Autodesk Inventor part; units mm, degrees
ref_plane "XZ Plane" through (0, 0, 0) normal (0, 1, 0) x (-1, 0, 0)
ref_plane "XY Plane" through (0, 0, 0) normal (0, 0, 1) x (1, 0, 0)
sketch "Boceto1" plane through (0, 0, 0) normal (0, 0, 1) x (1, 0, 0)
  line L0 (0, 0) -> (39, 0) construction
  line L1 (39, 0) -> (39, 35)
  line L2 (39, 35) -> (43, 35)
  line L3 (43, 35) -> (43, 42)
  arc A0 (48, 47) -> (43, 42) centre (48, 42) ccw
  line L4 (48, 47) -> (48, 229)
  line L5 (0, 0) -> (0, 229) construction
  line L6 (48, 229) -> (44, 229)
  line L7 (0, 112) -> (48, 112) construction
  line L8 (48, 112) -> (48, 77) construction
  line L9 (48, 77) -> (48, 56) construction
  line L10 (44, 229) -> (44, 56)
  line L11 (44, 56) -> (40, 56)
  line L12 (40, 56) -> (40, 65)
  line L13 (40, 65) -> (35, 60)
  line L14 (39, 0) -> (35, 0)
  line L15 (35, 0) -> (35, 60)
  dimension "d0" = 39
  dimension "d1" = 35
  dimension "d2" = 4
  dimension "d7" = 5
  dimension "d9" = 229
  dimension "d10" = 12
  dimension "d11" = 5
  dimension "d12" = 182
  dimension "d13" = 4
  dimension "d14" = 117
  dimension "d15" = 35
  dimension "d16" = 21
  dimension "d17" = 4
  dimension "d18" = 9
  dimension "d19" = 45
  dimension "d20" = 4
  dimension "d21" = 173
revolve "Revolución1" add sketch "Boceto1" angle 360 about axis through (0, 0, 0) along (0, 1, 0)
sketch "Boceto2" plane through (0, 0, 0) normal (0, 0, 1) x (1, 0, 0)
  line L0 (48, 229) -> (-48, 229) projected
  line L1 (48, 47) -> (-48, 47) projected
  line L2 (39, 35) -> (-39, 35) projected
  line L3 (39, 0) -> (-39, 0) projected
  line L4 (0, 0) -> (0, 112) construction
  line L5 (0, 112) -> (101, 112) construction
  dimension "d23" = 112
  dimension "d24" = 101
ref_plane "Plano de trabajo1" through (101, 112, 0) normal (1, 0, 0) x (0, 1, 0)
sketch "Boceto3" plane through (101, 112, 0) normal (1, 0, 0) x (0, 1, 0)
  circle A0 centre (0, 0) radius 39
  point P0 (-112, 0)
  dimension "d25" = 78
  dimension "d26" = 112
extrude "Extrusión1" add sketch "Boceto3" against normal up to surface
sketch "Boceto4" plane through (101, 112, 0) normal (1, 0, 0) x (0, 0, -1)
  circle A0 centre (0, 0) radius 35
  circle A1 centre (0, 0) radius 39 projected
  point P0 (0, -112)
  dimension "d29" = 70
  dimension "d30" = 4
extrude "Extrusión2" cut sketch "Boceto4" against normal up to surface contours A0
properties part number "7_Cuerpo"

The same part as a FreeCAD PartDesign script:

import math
import FreeCAD as App
import Part
import Sketcher

V = App.Vector

doc = App.newDocument("Part")
body = doc.addObject("PartDesign::Body", "Body")

sketch1 = body.newObject("Sketcher::SketchObject", "Sketch")
sketch1.AttachmentSupport = (doc.getObject("XY_Plane"), [""])
sketch1.MapMode = "FlatFace"
sketch1.addGeometry([
    Part.LineSegment(V(35, 0, 0), V(39, 0, 0)),
    Part.LineSegment(V(39, 0, 0), V(39, 35, 0)),
    Part.LineSegment(V(39, 35, 0), V(43, 35, 0)),
    Part.LineSegment(V(43, 35, 0), V(43, 42, 0)),
    Part.ArcOfCircle(Part.Circle(V(48, 42, 0), V(0, 0, 1), 5), math.radians(90), math.radians(180)),
    Part.LineSegment(V(48, 47, 0), V(48, 229, 0)),
    Part.LineSegment(V(48, 229, 0), V(44, 229, 0)),
    Part.LineSegment(V(44, 229, 0), V(44, 56, 0)),
    Part.LineSegment(V(44, 56, 0), V(40, 56, 0)),
    Part.LineSegment(V(40, 56, 0), V(40, 65, 0)),
    Part.LineSegment(V(40, 65, 0), V(35, 60, 0)),
    Part.LineSegment(V(35, 60, 0), V(35, 0, 0)),
], False)
sketch1.addConstraint([
    Sketcher.Constraint("Coincident", 0, 2, 1, 1),
    Sketcher.Constraint("Coincident", 1, 2, 2, 1),
    Sketcher.Constraint("Coincident", 2, 2, 3, 1),
    Sketcher.Constraint("Tangent", 3, 2, 4, 2),
    Sketcher.Constraint("Coincident", 4, 1, 5, 1),
    Sketcher.Constraint("Coincident", 5, 2, 6, 1),
    Sketcher.Constraint("Coincident", 6, 2, 7, 1),
    Sketcher.Constraint("Coincident", 7, 2, 8, 1),
    Sketcher.Constraint("Coincident", 8, 2, 9, 1),
    Sketcher.Constraint("Coincident", 9, 2, 10, 1),
    Sketcher.Constraint("Coincident", 10, 2, 11, 1),
    Sketcher.Constraint("Coincident", 11, 2, 0, 1),
    Sketcher.Constraint("Horizontal", 0),
    Sketcher.Constraint("Vertical", 1),
    Sketcher.Constraint("Horizontal", 2),
    Sketcher.Constraint("Vertical", 3),
    Sketcher.Constraint("Vertical", 5),
    Sketcher.Constraint("Horizontal", 6),
    Sketcher.Constraint("Vertical", 7),
    Sketcher.Constraint("Horizontal", 8),
    Sketcher.Constraint("Vertical", 9),
    Sketcher.Constraint("Vertical", 11),
    Sketcher.Constraint("PointOnObject", 0, 2, -1),
    Sketcher.Constraint("Equal", 0, 2),
    Sketcher.Constraint("Equal", 2, 6),
    Sketcher.Constraint("Equal", 6, 8),
    Sketcher.Constraint("Radius", 4, 5.0),
    Sketcher.Constraint("DistanceX", 0, 1, 0, 2, 4.0),
    Sketcher.Constraint("DistanceY", 1, 1, 1, 2, 35.0),
    Sketcher.Constraint("DistanceY", 5, 1, 5, 2, 182.0),
    Sketcher.Constraint("DistanceY", 7, 2, 7, 1, 173.0),
    Sketcher.Constraint("DistanceY", 9, 1, 9, 2, 9.0),
    Sketcher.Constraint("DistanceX", -1, 1, 0, 2, 39.0),
    Sketcher.Constraint("DistanceY", -1, 1, 5, 2, 229.0),
    Sketcher.Constraint("DistanceX", 3, 2, 4, 1, 5.0),
    Sketcher.Constraint("DistanceY", 8, 2, 10, 2, 4.0),
])
revolution = body.newObject("PartDesign::Revolution", "Revolution")
revolution.Profile = sketch1
revolution.ReferenceAxis = (sketch1, ["V_Axis"])
revolution.Angle = 360

sketch2 = body.newObject("Sketcher::SketchObject", "Sketch001")
sketch2.AttachmentSupport = (doc.getObject("YZ_Plane"), [""])
sketch2.MapMode = "FlatFace"
sketch2.AttachmentOffset = App.Placement(V(0, 0, 101), App.Rotation())
sketch2.addGeometry(Part.Circle(V(112, 0, 0), V(0, 0, 1), 39), False)
sketch2.addConstraint([
    Sketcher.Constraint("PointOnObject", 0, 3, -1),
    Sketcher.Constraint("Diameter", 0, 78.0),
    Sketcher.Constraint("DistanceX", -1, 1, 0, 3, 112.0),
])
pad1 = body.newObject("PartDesign::Pad", "Pad")
pad1.Profile = sketch2
pad1.Type = "UpToFirst"
pad1.Reversed = True

sketch3 = body.newObject("Sketcher::SketchObject", "Sketch002")
sketch3.AttachmentSupport = (doc.getObject("YZ_Plane"), [""])
sketch3.MapMode = "FlatFace"
sketch3.AttachmentOffset = App.Placement(V(0, 0, 101), App.Rotation())
sketch3.addGeometry(Part.Circle(V(112, 0, 0), V(0, 0, 1), 35), False)
sketch3.addConstraint([
    Sketcher.Constraint("PointOnObject", 0, 3, -1),
    Sketcher.Constraint("Diameter", 0, 70.0),
    Sketcher.Constraint("DistanceX", -1, 1, 0, 3, 112.0),
])
pocket1 = body.newObject("PartDesign::Pocket", "Pocket")
pocket1.Profile = sketch3
pocket1.Length = 74.3354

doc.recompute()
